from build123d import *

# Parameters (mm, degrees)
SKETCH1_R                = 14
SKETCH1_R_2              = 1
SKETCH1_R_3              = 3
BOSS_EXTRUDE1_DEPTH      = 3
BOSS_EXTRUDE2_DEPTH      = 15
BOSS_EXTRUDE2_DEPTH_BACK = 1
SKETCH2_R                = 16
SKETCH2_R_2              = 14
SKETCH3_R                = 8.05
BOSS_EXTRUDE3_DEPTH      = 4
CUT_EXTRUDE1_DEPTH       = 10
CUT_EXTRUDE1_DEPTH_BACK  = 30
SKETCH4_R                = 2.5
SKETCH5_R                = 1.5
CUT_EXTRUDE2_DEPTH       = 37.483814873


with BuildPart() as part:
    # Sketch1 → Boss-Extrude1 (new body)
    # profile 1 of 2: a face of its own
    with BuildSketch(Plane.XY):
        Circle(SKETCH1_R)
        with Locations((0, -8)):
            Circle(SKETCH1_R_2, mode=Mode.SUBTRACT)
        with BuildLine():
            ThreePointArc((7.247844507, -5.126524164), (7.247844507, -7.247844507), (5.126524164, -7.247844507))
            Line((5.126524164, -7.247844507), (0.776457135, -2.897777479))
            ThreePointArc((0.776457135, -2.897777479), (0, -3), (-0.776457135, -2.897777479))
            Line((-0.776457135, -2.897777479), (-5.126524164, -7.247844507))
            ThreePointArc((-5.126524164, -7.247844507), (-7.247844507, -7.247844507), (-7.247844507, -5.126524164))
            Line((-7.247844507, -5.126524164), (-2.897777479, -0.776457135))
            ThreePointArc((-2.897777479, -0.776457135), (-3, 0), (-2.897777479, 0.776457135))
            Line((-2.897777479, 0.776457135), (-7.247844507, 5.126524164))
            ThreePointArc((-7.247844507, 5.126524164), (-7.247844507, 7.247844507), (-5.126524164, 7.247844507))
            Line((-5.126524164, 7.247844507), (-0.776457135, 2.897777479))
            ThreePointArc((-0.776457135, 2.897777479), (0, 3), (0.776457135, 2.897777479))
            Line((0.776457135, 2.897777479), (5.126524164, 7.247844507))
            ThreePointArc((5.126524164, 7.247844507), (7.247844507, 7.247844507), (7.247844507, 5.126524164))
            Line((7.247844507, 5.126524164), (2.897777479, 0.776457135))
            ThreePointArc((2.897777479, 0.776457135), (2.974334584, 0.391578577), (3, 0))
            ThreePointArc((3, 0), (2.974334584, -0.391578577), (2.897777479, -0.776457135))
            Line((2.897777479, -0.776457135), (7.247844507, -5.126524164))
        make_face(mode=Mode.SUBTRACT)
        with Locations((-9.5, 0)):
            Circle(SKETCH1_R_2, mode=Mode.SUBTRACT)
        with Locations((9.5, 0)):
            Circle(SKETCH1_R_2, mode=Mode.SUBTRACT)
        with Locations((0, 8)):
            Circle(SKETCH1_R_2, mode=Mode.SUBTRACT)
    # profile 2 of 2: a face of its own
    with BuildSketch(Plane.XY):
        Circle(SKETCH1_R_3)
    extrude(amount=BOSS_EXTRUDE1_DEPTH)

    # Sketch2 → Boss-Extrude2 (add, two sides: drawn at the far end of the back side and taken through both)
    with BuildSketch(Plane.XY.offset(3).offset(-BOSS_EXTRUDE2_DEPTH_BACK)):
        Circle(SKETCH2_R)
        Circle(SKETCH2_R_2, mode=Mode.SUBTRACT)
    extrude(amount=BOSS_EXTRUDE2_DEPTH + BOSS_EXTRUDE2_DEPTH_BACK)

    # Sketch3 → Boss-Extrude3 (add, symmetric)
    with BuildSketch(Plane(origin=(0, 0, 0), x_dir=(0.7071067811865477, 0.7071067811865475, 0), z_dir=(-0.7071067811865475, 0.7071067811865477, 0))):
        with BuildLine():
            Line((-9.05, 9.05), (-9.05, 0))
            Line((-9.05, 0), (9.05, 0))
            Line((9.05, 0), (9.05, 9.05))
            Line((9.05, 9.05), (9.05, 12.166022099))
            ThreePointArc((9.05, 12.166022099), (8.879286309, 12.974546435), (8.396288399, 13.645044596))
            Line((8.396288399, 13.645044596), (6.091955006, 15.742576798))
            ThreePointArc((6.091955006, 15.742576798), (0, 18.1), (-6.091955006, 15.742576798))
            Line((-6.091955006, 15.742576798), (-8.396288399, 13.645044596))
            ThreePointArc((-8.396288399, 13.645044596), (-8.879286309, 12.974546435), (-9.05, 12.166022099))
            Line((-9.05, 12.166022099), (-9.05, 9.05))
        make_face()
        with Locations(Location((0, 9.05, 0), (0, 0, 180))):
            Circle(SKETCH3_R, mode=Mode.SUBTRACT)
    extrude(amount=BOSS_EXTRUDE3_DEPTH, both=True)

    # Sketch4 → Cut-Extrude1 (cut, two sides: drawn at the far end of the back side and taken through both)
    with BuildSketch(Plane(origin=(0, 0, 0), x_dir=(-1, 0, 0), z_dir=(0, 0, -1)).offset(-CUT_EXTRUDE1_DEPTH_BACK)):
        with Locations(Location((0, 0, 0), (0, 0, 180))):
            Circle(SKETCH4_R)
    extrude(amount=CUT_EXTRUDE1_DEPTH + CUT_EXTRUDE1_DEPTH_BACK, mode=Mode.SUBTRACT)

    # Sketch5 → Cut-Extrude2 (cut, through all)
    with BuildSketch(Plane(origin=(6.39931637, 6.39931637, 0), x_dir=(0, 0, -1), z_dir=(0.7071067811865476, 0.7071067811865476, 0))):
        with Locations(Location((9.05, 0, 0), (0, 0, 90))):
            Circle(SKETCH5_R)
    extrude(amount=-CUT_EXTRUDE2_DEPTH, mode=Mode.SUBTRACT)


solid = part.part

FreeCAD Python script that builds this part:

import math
import FreeCAD as App
import Part
import Sketcher

V = App.Vector

doc = App.newDocument("Part")
body = doc.addObject("PartDesign::Body", "Body")

sketch1 = doc.addObject("Sketcher::SketchObject", "Sketch")
body.addObject(sketch1)
sketch1.AttachmentSupport = (doc.XY_Plane, [""])
sketch1.MapMode = "FlatFace"
sketch1.addGeometry([
    Part.Circle(V(0, 0, 0), V(0, 0, 1), 14),
    Part.Circle(V(0, -8, 0), V(0, 0, 1), 1),
    Part.Circle(V(-9.5, 0, 0), V(0, 0, 1), 1),
    Part.LineSegment(V(2.9, -0.8, 0), V(7.2, -5.1, 0)),
    Part.ArcOfCircle(Part.Circle(V(6.2, -6.2, 0), V(0, 0, 1), 1.5), math.radians(-135), math.radians(45)),
    Part.LineSegment(V(5.1, -7.2, 0), V(0.8, -2.9, 0)),
    Part.ArcOfCircle(Part.Circle(V(0, 0, 0), V(0, 0, 1), 3), math.radians(-75), math.radians(-15)),
    Part.LineSegment(V(7.2, 5.1, 0), V(2.9, 0.8, 0)),
    Part.ArcOfCircle(Part.Circle(V(0, 0, 0), V(0, 0, 1), 3), math.radians(15), math.radians(75)),
    Part.LineSegment(V(0.8, 2.9, 0), V(5.1, 7.2, 0)),
    Part.ArcOfCircle(Part.Circle(V(6.2, 6.2, 0), V(0, 0, 1), 1.5), math.radians(-45), math.radians(135)),
    Part.LineSegment(V(-0.8, -2.9, 0), V(-5.1, -7.2, 0)),
    Part.ArcOfCircle(Part.Circle(V(-6.2, -6.2, 0), V(0, 0, 1), 1.5), math.radians(135), math.radians(315)),
    Part.LineSegment(V(-7.2, -5.1, 0), V(-2.9, -0.8, 0)),
    Part.ArcOfCircle(Part.Circle(V(0, 0, 0), V(0, 0, 1), 3), math.radians(-165), math.radians(-105)),
    Part.LineSegment(V(-5.1, 7.2, 0), V(-0.8, 2.9, 0)),
    Part.ArcOfCircle(Part.Circle(V(0, 0, 0), V(0, 0, 1), 3), math.radians(105), math.radians(165)),
    Part.LineSegment(V(-2.9, 0.8, 0), V(-7.2, 5.1, 0)),
    Part.ArcOfCircle(Part.Circle(V(-6.2, 6.2, 0), V(0, 0, 1), 1.5), math.radians(45), math.radians(225)),
    Part.Circle(V(9.5, 0, 0), V(0, 0, 1), 1),
    Part.Circle(V(0, 8, 0), V(0, 0, 1), 1),
], False)
sketch1.addConstraint([
    Sketcher.Constraint("Tangent", 3, 2, 4, 2),
    Sketcher.Constraint("Tangent", 4, 1, 5, 1),
    Sketcher.Constraint("Coincident", 5, 2, 6, 1),
    Sketcher.Constraint("Coincident", 6, 2, 3, 1),
    Sketcher.Constraint("Coincident", 7, 2, 8, 1),
    Sketcher.Constraint("Coincident", 8, 2, 9, 1),
    Sketcher.Constraint("Tangent", 9, 2, 10, 2),
    Sketcher.Constraint("Tangent", 10, 1, 7, 1),
    Sketcher.Constraint("Tangent", 11, 2, 12, 2),
    Sketcher.Constraint("Tangent", 12, 1, 13, 1),
    Sketcher.Constraint("Coincident", 13, 2, 14, 1),
    Sketcher.Constraint("Coincident", 14, 2, 11, 1),
    Sketcher.Constraint("Coincident", 15, 2, 16, 1),
    Sketcher.Constraint("Coincident", 16, 2, 17, 1),
    Sketcher.Constraint("Tangent", 17, 2, 18, 2),
    Sketcher.Constraint("Tangent", 18, 1, 15, 1),
    Sketcher.Constraint("Coincident", 0, 3, -1, 1),
    Sketcher.Constraint("Coincident", 6, 3, -1, 1),
    Sketcher.Constraint("Coincident", 8, 3, -1, 1),
    Sketcher.Constraint("Coincident", 14, 3, -1, 1),
    Sketcher.Constraint("Coincident", 16, 3, -1, 1),
    Sketcher.Constraint("Equal", 1, 2),
    Sketcher.Constraint("Equal", 6, 8),
    Sketcher.Constraint("Equal", 4, 10),
    Sketcher.Constraint("Equal", 10, 12),
    Sketcher.Constraint("Equal", 8, 14),
    Sketcher.Constraint("Equal", 14, 16),
    Sketcher.Constraint("Equal", 12, 18),
    Sketcher.Constraint("Equal", 2, 19),
    Sketcher.Constraint("Equal", 19, 20),
    Sketcher.Constraint("Symmetric", 10, 3, 12, 3, -1, 1),
    Sketcher.Constraint("Symmetric", 4, 3, 18, 3, -1, 1),
    Sketcher.Constraint("Symmetric", 2, 3, 19, 3, -1, 1),
    Sketcher.Constraint("Symmetric", 1, 3, 20, 3, -1, 1),
    Sketcher.Constraint("Symmetric", 4, 3, 12, 3, -2),
    Sketcher.Constraint("PointOnObject", 1, 3, -2),
    Sketcher.Constraint("PointOnObject", 2, 3, -1),
    Sketcher.Constraint("Parallel", 3, 5),
    Sketcher.Constraint("Perpendicular", 5, 7),
    Sketcher.Constraint("Parallel", 7, 9),
    Sketcher.Constraint("Parallel", 9, 11),
    Sketcher.Constraint("Parallel", 11, 13),
    Sketcher.Constraint("Perpendicular", 13, 15),
    Sketcher.Constraint("Parallel", 15, 17),
    Sketcher.Constraint("Horizontal", 4, 1, 11, 2),
    Sketcher.Constraint("Equal", 3, 5),
    Sketcher.Constraint("Diameter", 0, 28.0),
    Sketcher.Constraint("Diameter", 1, 2.0),
    Sketcher.Constraint("Radius", 6, 3.0),
    Sketcher.Constraint("Radius", 4, 1.5),
    Sketcher.Constraint("DistanceY", 1, 3, -1, 1, 8.0),
    Sketcher.Constraint("DistanceX", 2, 3, -1, 1, 9.5),
    Sketcher.Constraint("DistanceY", 6, 2, 9, 2, 8.024302),
])
pad1 = doc.addObject("PartDesign::Pad", "Pad")
body.addObject(pad1)
pad1.Profile = sketch1
pad1.Length = 3

sketch2 = doc.addObject("Sketcher::SketchObject", "Sketch001")
body.addObject(sketch2)
sketch2.AttachmentSupport = (doc.XY_Plane, [""])
sketch2.MapMode = "FlatFace"
sketch2.AttachmentOffset = App.Placement(V(0, 0, 3), App.Rotation())
sketch2.addGeometry([
    Part.Circle(V(0, 0, 0), V(0, 0, 1), 16),
    Part.Circle(V(0, 0, 0), V(0, 0, 1), 14),
], False)
sketch2.addConstraint([
    Sketcher.Constraint("Coincident", 0, 3, -1, 1),
    Sketcher.Constraint("Coincident", 1, 3, -1, 1),
    Sketcher.Constraint("Diameter", 0, 32.0),
    Sketcher.Constraint("Diameter", 1, 28.0),
])
pad2 = doc.addObject("PartDesign::Pad", "Pad001")
body.addObject(pad2)
pad2.Profile = sketch2
pad2.Type = "TwoLengths"
pad2.Length = 15
pad2.Length2 = 1

sketch3 = doc.addObject("Sketcher::SketchObject", "Sketch002")
body.addObject(sketch3)
sketch3.Placement = App.Placement(V(0, 0, 0), App.Rotation(V(0.707106781, 0.707106781, 0), V(0, 0, -0.999999999), V(-0.707106781, 0.707106781, 0), "ZXY"))
sketch3.addGeometry([
    Part.LineSegment(V(-9, 0, 0), V(9, 0, 0)),
    Part.LineSegment(V(9, 0, 0), V(9, 12.2, 0)),
    Part.ArcOfCircle(Part.Circle(V(7.1, 12.2, 0), V(0, 0, 1), 2), math.radians(0), math.radians(48)),
    Part.LineSegment(V(8.4, 13.6, 0), V(6.1, 15.7, 0)),
    Part.ArcOfCircle(Part.Circle(V(0, 9, 0), V(0, 0, 1), 9), math.radians(48), math.radians(132)),
    Part.LineSegment(V(-6.1, 15.7, 0), V(-8.4, 13.6, 0)),
    Part.ArcOfCircle(Part.Circle(V(-7.1, 12.2, 0), V(0, 0, 1), 2), math.radians(132), math.radians(180)),
    Part.LineSegment(V(-9, 12.2, 0), V(-9, 0, 0)),
    Part.Circle(V(0, 9, 0), V(0, 0, 1), 8.1),
], False)
sketch3.addConstraint([
    Sketcher.Constraint("Coincident", 0, 2, 1, 1),
    Sketcher.Constraint("Tangent", 1, 2, 2, 1),
    Sketcher.Constraint("Tangent", 2, 2, 3, 1),
    Sketcher.Constraint("Tangent", 3, 2, 4, 1),
    Sketcher.Constraint("Tangent", 4, 2, 5, 1),
    Sketcher.Constraint("Tangent", 5, 2, 6, 1),
    Sketcher.Constraint("Tangent", 6, 2, 7, 1),
    Sketcher.Constraint("Coincident", 7, 2, 0, 1),
    Sketcher.Constraint("Horizontal", 0),
    Sketcher.Constraint("Vertical", 1),
    Sketcher.Constraint("Vertical", 7),
    Sketcher.Constraint("Coincident", 8, 3, 4, 3),
    Sketcher.Constraint("Equal", 2, 6),
    Sketcher.Constraint("Symmetric", 0, 2, 7, 2, -1, 1),
    Sketcher.Constraint("Symmetric", 3, 2, 4, 2, -2),
    Sketcher.Constraint("Radius", 2, 2.0),
    Sketcher.Constraint("Diameter", 8, 16.1),
    Sketcher.Constraint("Radius", 4, 9.05),
    Sketcher.Constraint("DistanceX", 0, 1, 0, 2, 18.1),
    Sketcher.Constraint("DistanceY", -1, 1, 4, 3, 9.05),
    Sketcher.Constraint("DistanceY", 1, 1, 1, 2, 12.166022),
])
pad3 = doc.addObject("PartDesign::Pad", "Pad002")
body.addObject(pad3)
pad3.Profile = sketch3
pad3.Length = 8
pad3.Midplane = True

sketch4 = doc.addObject("Sketcher::SketchObject", "Sketch003")
body.addObject(sketch4)
sketch4.AttachmentSupport = (doc.XY_Plane, [""])
sketch4.MapMode = "FlatFace"
sketch4.addGeometry(Part.Circle(V(0, 0, 0), V(0, 0, 1), 2.5), False)
sketch4.addConstraint([
    Sketcher.Constraint("Coincident", 0, 3, -1, 1),
    Sketcher.Constraint("Diameter", 0, 5.0),
])
pocket1 = doc.addObject("PartDesign::Pocket", "Pocket")
body.addObject(pocket1)
pocket1.Profile = sketch4
pocket1.Type = "TwoLengths"
pocket1.Length = 10
pocket1.Length2 = 30

sketch5 = doc.addObject("Sketcher::SketchObject", "Sketch004")
body.addObject(sketch5)
sketch5.Placement = App.Placement(V(6.399316, 6.399316, 0), App.Rotation(V(0, 0, -1), V(-0.707106781, 0.707106781, 0), V(0.707106781, 0.707106781, 0), "ZXY"))
sketch5.addGeometry(Part.Circle(V(9.1, 0, 0), V(0, 0, 1), 1.5), False)
sketch5.addConstraint([
    Sketcher.Constraint("PointOnObject", 0, 3, -1),
    Sketcher.Constraint("Diameter", 0, 3.0),
    Sketcher.Constraint("DistanceX", -1, 1, 0, 3, 9.05),
])
pocket2 = doc.addObject("PartDesign::Pocket", "Pocket001")
body.addObject(pocket2)
pocket2.Profile = sketch5
pocket2.Type = "ThroughAll"

doc.recompute()
